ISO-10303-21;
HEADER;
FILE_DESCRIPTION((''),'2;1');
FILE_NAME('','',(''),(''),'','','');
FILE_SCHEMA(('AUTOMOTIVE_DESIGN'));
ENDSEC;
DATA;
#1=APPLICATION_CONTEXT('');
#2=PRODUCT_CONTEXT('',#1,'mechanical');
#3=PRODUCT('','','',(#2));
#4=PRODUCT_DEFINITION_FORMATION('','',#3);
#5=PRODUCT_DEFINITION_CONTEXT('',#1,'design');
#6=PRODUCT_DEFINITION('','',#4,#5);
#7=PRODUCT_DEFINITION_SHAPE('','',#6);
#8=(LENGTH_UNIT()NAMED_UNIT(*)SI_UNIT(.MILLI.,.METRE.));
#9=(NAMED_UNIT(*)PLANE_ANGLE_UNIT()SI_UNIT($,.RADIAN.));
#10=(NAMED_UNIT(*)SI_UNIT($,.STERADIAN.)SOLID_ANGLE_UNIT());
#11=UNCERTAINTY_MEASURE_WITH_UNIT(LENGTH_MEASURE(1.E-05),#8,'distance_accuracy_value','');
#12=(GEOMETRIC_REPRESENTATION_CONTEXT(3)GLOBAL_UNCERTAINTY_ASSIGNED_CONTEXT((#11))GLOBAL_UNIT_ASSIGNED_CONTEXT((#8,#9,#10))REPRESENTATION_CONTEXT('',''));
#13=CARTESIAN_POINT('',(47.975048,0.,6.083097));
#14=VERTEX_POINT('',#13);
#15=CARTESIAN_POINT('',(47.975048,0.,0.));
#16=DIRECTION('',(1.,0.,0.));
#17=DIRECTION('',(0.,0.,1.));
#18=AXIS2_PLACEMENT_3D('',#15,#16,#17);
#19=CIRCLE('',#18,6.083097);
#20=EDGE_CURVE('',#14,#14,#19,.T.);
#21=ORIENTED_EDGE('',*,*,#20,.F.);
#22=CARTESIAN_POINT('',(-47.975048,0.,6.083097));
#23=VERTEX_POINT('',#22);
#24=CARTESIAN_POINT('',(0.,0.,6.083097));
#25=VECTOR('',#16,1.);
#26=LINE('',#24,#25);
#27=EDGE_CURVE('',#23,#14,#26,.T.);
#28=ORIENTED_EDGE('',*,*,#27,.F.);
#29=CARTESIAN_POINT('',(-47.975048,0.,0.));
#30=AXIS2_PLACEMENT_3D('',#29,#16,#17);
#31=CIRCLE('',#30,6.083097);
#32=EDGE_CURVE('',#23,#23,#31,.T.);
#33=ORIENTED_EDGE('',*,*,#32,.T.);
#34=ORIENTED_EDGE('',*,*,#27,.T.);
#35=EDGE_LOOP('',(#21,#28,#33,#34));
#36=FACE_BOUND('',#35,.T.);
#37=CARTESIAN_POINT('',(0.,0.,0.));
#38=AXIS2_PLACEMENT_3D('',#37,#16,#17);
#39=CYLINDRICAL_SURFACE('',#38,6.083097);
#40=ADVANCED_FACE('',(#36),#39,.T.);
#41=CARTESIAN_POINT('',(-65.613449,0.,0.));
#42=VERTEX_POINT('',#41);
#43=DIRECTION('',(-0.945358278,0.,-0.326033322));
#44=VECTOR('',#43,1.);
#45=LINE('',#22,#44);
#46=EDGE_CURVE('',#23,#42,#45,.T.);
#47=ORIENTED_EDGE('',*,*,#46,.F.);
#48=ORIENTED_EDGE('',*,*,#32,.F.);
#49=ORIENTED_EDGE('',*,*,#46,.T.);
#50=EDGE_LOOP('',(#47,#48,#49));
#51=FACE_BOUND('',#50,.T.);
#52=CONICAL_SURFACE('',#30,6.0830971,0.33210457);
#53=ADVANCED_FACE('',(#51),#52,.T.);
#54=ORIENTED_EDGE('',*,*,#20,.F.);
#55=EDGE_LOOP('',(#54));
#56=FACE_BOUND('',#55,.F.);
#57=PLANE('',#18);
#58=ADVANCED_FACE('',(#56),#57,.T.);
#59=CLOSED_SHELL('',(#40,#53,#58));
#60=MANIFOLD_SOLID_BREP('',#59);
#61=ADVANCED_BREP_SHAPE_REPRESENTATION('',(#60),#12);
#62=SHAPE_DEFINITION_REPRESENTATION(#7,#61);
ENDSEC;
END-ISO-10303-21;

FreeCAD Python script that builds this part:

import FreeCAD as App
import Part
import Sketcher


def add_polygon(sketch, points):
    """Adds a closed chain of lines whose ends are joined by coincident constraints."""
    first, n = sketch.GeometryCount, len(points)
    for a, b in zip(points, points[1:] + points[:1]):
        sketch.addGeometry(Part.LineSegment(App.Vector(*a, 0), App.Vector(*b, 0)), False)
    for i in range(n):
        sketch.addConstraint(Sketcher.Constraint("Coincident", first + i, 2, first + (i + 1) % n, 1))

doc = App.newDocument("Part")
body = doc.addObject("PartDesign::Body", "Body")

sketch1 = body.newObject("Sketcher::SketchObject", "Sketch")
sketch1.AttachmentSupport = (doc.getObject("XZ_Plane"), [""])
sketch1.MapMode = "FlatFace"
add_polygon(sketch1, [(-48, 6), (-48, 0), (48, 0), (48, 6)])
sketch1.addConstraint(Sketcher.Constraint("Vertical", 0))
sketch1.addConstraint(Sketcher.Constraint("Horizontal", 1))
sketch1.addConstraint(Sketcher.Constraint("Vertical", 2))
sketch1.addConstraint(Sketcher.Constraint("Horizontal", 3))
sketch1.addConstraint(Sketcher.Constraint("Symmetric", 0, 2, 1, 2, -1, 1))
sketch1.addConstraint(Sketcher.Constraint("DistanceX", 1, 1, 1, 2, 95.950097))
sketch1.addConstraint(Sketcher.Constraint("DistanceY", 0, 2, 0, 1, 6.083097))
revolution = body.newObject("PartDesign::Revolution", "Revolution")
revolution.Profile = sketch1
revolution.ReferenceAxis = (sketch1, ["H_Axis"])
revolution.Angle = 360

sketch2 = body.newObject("Sketcher::SketchObject", "Sketch001")
sketch2.AttachmentSupport = (doc.getObject("XZ_Plane"), [""])
sketch2.MapMode = "FlatFace"
add_polygon(sketch2, [(-66, 0), (-48, 0), (-48, 6)])
sketch2.addConstraint(Sketcher.Constraint("Horizontal", 0))
sketch2.addConstraint(Sketcher.Constraint("Vertical", 1))
sketch2.addConstraint(Sketcher.Constraint("PointOnObject", 0, 2, -1))
sketch2.addConstraint(Sketcher.Constraint("DistanceX", 0, 1, 0, 2, 17.6384))
sketch2.addConstraint(Sketcher.Constraint("Distance", 2, 18.6579))
sketch2.addConstraint(Sketcher.Constraint("DistanceX", 0, 2, -1, 1, 47.975048))
revolution2 = body.newObject("PartDesign::Revolution", "Revolution001")
revolution2.Profile = sketch2
revolution2.ReferenceAxis = (sketch2, ["H_Axis"])
revolution2.Angle = 360

doc.recompute()
